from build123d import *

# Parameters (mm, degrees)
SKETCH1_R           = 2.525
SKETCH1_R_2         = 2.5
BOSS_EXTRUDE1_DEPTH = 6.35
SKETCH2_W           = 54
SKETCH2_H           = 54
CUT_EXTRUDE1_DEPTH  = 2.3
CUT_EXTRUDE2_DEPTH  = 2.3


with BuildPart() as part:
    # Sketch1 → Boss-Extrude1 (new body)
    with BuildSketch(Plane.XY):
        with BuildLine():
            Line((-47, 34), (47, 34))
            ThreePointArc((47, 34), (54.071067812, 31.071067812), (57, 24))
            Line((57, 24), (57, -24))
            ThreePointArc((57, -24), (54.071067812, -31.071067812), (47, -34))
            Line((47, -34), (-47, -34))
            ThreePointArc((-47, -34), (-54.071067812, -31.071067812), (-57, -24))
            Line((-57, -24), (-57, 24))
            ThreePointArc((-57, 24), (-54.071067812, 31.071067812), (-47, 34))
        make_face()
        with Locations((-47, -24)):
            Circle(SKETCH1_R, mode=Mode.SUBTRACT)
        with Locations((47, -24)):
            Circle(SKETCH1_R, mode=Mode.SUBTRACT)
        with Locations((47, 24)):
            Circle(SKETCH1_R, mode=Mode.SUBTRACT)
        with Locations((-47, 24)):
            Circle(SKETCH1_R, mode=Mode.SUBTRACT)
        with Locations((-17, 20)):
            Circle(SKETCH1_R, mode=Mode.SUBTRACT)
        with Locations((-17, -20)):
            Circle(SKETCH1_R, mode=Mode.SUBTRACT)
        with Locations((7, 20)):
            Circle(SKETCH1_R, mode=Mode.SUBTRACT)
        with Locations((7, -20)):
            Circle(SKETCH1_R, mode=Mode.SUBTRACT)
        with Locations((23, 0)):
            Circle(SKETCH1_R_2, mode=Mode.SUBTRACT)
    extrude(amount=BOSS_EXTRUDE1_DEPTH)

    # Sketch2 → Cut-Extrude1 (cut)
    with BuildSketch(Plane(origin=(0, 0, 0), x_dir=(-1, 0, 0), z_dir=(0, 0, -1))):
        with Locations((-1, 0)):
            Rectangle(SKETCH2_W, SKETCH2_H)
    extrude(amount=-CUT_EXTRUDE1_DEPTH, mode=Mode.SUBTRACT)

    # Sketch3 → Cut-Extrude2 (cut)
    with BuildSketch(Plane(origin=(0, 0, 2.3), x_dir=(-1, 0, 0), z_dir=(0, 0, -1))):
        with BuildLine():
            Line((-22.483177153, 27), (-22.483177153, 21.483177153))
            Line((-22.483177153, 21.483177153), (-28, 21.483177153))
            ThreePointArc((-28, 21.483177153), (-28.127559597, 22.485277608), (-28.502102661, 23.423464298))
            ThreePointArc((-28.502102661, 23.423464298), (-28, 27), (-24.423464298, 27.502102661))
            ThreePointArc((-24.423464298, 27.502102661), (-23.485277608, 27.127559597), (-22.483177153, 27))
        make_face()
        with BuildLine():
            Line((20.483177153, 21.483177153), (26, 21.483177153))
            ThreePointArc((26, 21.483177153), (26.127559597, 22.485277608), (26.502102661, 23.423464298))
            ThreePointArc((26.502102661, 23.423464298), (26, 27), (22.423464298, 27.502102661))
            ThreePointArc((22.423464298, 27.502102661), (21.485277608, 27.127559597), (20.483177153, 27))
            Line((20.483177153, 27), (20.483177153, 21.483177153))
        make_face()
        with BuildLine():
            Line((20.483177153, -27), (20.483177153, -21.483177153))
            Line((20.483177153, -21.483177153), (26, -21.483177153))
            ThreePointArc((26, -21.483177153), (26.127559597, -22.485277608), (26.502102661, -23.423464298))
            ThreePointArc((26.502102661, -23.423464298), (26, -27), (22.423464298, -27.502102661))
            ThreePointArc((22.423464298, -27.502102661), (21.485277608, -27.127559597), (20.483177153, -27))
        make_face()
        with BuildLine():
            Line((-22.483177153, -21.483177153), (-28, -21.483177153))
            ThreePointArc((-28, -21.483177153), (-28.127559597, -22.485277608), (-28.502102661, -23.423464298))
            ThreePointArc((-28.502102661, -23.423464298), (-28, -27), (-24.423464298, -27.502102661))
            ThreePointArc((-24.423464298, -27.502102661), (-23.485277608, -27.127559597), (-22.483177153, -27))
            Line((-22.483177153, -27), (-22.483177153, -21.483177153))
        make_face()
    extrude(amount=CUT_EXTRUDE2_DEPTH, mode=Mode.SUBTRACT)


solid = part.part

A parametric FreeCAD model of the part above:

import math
import FreeCAD as App
import Part
import Sketcher


def add_polygon(sketch, points):
    """Adds a closed chain of lines whose ends are joined by coincident constraints."""
    first, n = sketch.GeometryCount, len(points)
    for a, b in zip(points, points[1:] + points[:1]):
        sketch.addGeometry(Part.LineSegment(App.Vector(*a, 0), App.Vector(*b, 0)), False)
    for i in range(n):
        sketch.addConstraint(Sketcher.Constraint("Coincident", first + i, 2, first + (i + 1) % n, 1))

doc = App.newDocument("Part")
body = doc.addObject("PartDesign::Body", "Body")

# Sketch on XY plane
sketch1 = doc.addObject("Sketcher::SketchObject", "Sketch")
body.addObject(sketch1)
sketch1.AttachmentSupport = (doc.XY_Plane, [""])
sketch1.MapMode = "FlatFace"
sketch1.addGeometry(Part.LineSegment(App.Vector(47, 34, 0), App.Vector(-47, 34, 0)), False)
sketch1.addGeometry(Part.ArcOfCircle(Part.Circle(App.Vector(-47, 24, 0), App.Vector(0, 0, 1), 10), math.radians(90), math.radians(180)), False)
sketch1.addGeometry(Part.LineSegment(App.Vector(-57, 24, 0), App.Vector(-57, -24, 0)), False)
sketch1.addGeometry(Part.ArcOfCircle(Part.Circle(App.Vector(-47, -24, 0), App.Vector(0, 0, 1), 10), math.radians(180), math.radians(270)), False)
sketch1.addGeometry(Part.LineSegment(App.Vector(-47, -34, 0), App.Vector(47, -34, 0)), False)
sketch1.addGeometry(Part.ArcOfCircle(Part.Circle(App.Vector(47, -24, 0), App.Vector(0, 0, 1), 10), math.radians(-90), math.radians(0)), False)
sketch1.addGeometry(Part.LineSegment(App.Vector(57, -24, 0), App.Vector(57, 24, 0)), False)
sketch1.addGeometry(Part.ArcOfCircle(Part.Circle(App.Vector(47, 24, 0), App.Vector(0, 0, 1), 10), math.radians(0), math.radians(90)), False)
sketch1.addGeometry(Part.Circle(App.Vector(47, -24, 0), App.Vector(0, 0, 1), 2.5), False)
sketch1.addGeometry(Part.Circle(App.Vector(7, -20, 0), App.Vector(0, 0, 1), 2.5), False)
sketch1.addGeometry(Part.Circle(App.Vector(-17, -20, 0), App.Vector(0, 0, 1), 2.5), False)
sketch1.addGeometry(Part.Circle(App.Vector(-47, -24, 0), App.Vector(0, 0, 1), 2.5), False)
sketch1.addGeometry(Part.Circle(App.Vector(23, 0, 0), App.Vector(0, 0, 1), 2.5), False)
sketch1.addGeometry(Part.Circle(App.Vector(47, 24, 0), App.Vector(0, 0, 1), 2.5), False)
sketch1.addGeometry(Part.Circle(App.Vector(7, 20, 0), App.Vector(0, 0, 1), 2.5), False)
sketch1.addGeometry(Part.Circle(App.Vector(-17, 20, 0), App.Vector(0, 0, 1), 2.5), False)
sketch1.addGeometry(Part.Circle(App.Vector(-47, 24, 0), App.Vector(0, 0, 1), 2.5), False)
sketch1.addConstraint(Sketcher.Constraint("Tangent", 0, 2, 1, 1))
sketch1.addConstraint(Sketcher.Constraint("Tangent", 1, 2, 2, 1))
sketch1.addConstraint(Sketcher.Constraint("Tangent", 2, 2, 3, 1))
sketch1.addConstraint(Sketcher.Constraint("Tangent", 3, 2, 4, 1))
sketch1.addConstraint(Sketcher.Constraint("Tangent", 4, 2, 5, 1))
sketch1.addConstraint(Sketcher.Constraint("Tangent", 5, 2, 6, 1))
sketch1.addConstraint(Sketcher.Constraint("Tangent", 6, 2, 7, 1))
sketch1.addConstraint(Sketcher.Constraint("Tangent", 7, 2, 0, 1))
sketch1.addConstraint(Sketcher.Constraint("Horizontal", 0))
sketch1.addConstraint(Sketcher.Constraint("Vertical", 2))
sketch1.addConstraint(Sketcher.Constraint("Horizontal", 4))
sketch1.addConstraint(Sketcher.Constraint("Vertical", 6))
sketch1.addConstraint(Sketcher.Constraint("Coincident", 8, 3, 5, 3))
sketch1.addConstraint(Sketcher.Constraint("Coincident", 11, 3, 3, 3))
sketch1.addConstraint(Sketcher.Constraint("Coincident", 13, 3, 7, 3))
sketch1.addConstraint(Sketcher.Constraint("Coincident", 16, 3, 1, 3))
sketch1.addConstraint(Sketcher.Constraint("Equal", 1, 3))
sketch1.addConstraint(Sketcher.Constraint("Equal", 3, 5))
sketch1.addConstraint(Sketcher.Constraint("Equal", 5, 7))
sketch1.addConstraint(Sketcher.Constraint("Equal", 8, 9))
sketch1.addConstraint(Sketcher.Constraint("Equal", 9, 10))
sketch1.addConstraint(Sketcher.Constraint("Equal", 10, 11))
sketch1.addConstraint(Sketcher.Constraint("Equal", 11, 13))
sketch1.addConstraint(Sketcher.Constraint("Equal", 13, 14))
sketch1.addConstraint(Sketcher.Constraint("Equal", 14, 15))
sketch1.addConstraint(Sketcher.Constraint("Equal", 15, 16))
sketch1.addConstraint(Sketcher.Constraint("Symmetric", 1, 3, 5, 3, -1, 1))
sketch1.addConstraint(Sketcher.Constraint("Symmetric", 9, 3, 14, 3, -1))
sketch1.addConstraint(Sketcher.Constraint("Symmetric", 10, 3, 15, 3, -1))
sketch1.addConstraint(Sketcher.Constraint("PointOnObject", 12, 3, -1))
sketch1.addConstraint(Sketcher.Constraint("Horizontal", 9, 3, 10, 3))
sketch1.addConstraint(Sketcher.Constraint("Diameter", 12, 5.0))
sketch1.addConstraint(Sketcher.Constraint("Radius", 1, 10.0))
sketch1.addConstraint(Sketcher.Constraint("Diameter", 8, 5.05))
sketch1.addConstraint(Sketcher.Constraint("DistanceX", 0, 2, 0, 1, 94.0))
sketch1.addConstraint(Sketcher.Constraint("DistanceY", 2, 2, 2, 1, 48.0))
sketch1.addConstraint(Sketcher.Constraint("DistanceX", -1, 1, 9, 3, 7.0))
sketch1.addConstraint(Sketcher.Constraint("DistanceY", 9, 3, -1, 1, 20.0))
sketch1.addConstraint(Sketcher.Constraint("DistanceX", 10, 3, -1, 1, 17.0))
sketch1.addConstraint(Sketcher.Constraint("DistanceX", -1, 1, 12, 3, 23.0))
pad1 = doc.addObject("PartDesign::Pad", "Pad")
body.addObject(pad1)
pad1.Profile = sketch1
pad1.Length = 6.35

# Sketch on XY plane
sketch2 = doc.addObject("Sketcher::SketchObject", "Sketch001")
body.addObject(sketch2)
sketch2.AttachmentSupport = (doc.XY_Plane, [""])
sketch2.MapMode = "FlatFace"
add_polygon(sketch2, [(28, 27), (28, -27), (-26, -27), (-26, 27)])  # lines 0-3
sketch2.addConstraint(Sketcher.Constraint("Vertical", 0))
sketch2.addConstraint(Sketcher.Constraint("Horizontal", 1))
sketch2.addConstraint(Sketcher.Constraint("Vertical", 2))
sketch2.addConstraint(Sketcher.Constraint("Horizontal", 3))
sketch2.addConstraint(Sketcher.Constraint("Equal", 3, 0))
sketch2.addConstraint(Sketcher.Constraint("DistanceX", 1, 2, 1, 1, 54.0))
sketch2.addConstraint(Sketcher.Constraint("DistanceX", -1, 1, 0, 2, 28.0))
sketch2.addConstraint(Sketcher.Constraint("DistanceY", 0, 2, -1, 1, 27.0))
pocket1 = doc.addObject("PartDesign::Pocket", "Pocket")
body.addObject(pocket1)
pocket1.Profile = sketch2
pocket1.Length = 2.3
pocket1.Reversed = True

# Sketch on XY plane
sketch3 = doc.addObject("Sketcher::SketchObject", "Sketch002")
body.addObject(sketch3)
sketch3.AttachmentSupport = (doc.XY_Plane, [""])
sketch3.MapMode = "FlatFace"
sketch3.AttachmentOffset = App.Placement(App.Vector(0, 0, 2.3), App.Rotation())
sketch3.addGeometry(Part.LineSegment(App.Vector(22.5, 21.5, 0), App.Vector(22.5, 27, 0)), False)
sketch3.addGeometry(Part.ArcOfCircle(Part.Circle(App.Vector(22.5, 31, 0), App.Vector(0, 0, 1), 4), math.radians(-90), math.radians(-61)), False)
sketch3.addGeometry(Part.ArcOfCircle(Part.Circle(App.Vector(25.9, 24.9, 0), App.Vector(0, 0, 1), 3), math.radians(-29), math.radians(119)), False)
sketch3.addGeometry(Part.ArcOfCircle(Part.Circle(App.Vector(32, 21.5, 0), App.Vector(0, 0, 1), 4), math.radians(151), math.radians(180)), False)
sketch3.addGeometry(Part.LineSegment(App.Vector(28, 21.5, 0), App.Vector(22.5, 21.5, 0)), False)
sketch3.addGeometry(Part.LineSegment(App.Vector(-20.5, 21.5, 0), App.Vector(-26, 21.5, 0)), False)
sketch3.addGeometry(Part.ArcOfCircle(Part.Circle(App.Vector(-30, 21.5, 0), App.Vector(0, 0, 1), 4), math.radians(0), math.radians(29)), False)
sketch3.addGeometry(Part.ArcOfCircle(Part.Circle(App.Vector(-23.9, 24.9, 0), App.Vector(0, 0, 1), 3), math.radians(61), math.radians(209)), False)
sketch3.addGeometry(Part.ArcOfCircle(Part.Circle(App.Vector(-20.5, 31, 0), App.Vector(0, 0, 1), 4), math.radians(-119), math.radians(-90)), False)
sketch3.addGeometry(Part.LineSegment(App.Vector(-20.5, 27, 0), App.Vector(-20.5, 21.5, 0)), False)
sketch3.addGeometry(Part.LineSegment(App.Vector(-20.5, -21.5, 0), App.Vector(-20.5, -27, 0)), False)
sketch3.addGeometry(Part.ArcOfCircle(Part.Circle(App.Vector(-20.5, -31, 0), App.Vector(0, 0, 1), 4), math.radians(90), math.radians(119)), False)
sketch3.addGeometry(Part.ArcOfCircle(Part.Circle(App.Vector(-23.9, -24.9, 0), App.Vector(0, 0, 1), 3), math.radians(151), math.radians(299)), False)
sketch3.addGeometry(Part.ArcOfCircle(Part.Circle(App.Vector(-30, -21.5, 0), App.Vector(0, 0, 1), 4), math.radians(-29), math.radians(0)), False)
sketch3.addGeometry(Part.LineSegment(App.Vector(-26, -21.5, 0), App.Vector(-20.5, -21.5, 0)), False)
sketch3.addGeometry(Part.LineSegment(App.Vector(22.5, -21.5, 0), App.Vector(28, -21.5, 0)), False)
sketch3.addGeometry(Part.ArcOfCircle(Part.Circle(App.Vector(32, -21.5, 0), App.Vector(0, 0, 1), 4), math.radians(-180), math.radians(-151)), False)
sketch3.addGeometry(Part.ArcOfCircle(Part.Circle(App.Vector(25.9, -24.9, 0), App.Vector(0, 0, 1), 3), math.radians(-119), math.radians(29)), False)
sketch3.addGeometry(Part.ArcOfCircle(Part.Circle(App.Vector(22.5, -31, 0), App.Vector(0, 0, 1), 4), math.radians(61), math.radians(90)), False)
sketch3.addGeometry(Part.LineSegment(App.Vector(22.5, -27, 0), App.Vector(22.5, -21.5, 0)), False)
sketch3.addConstraint(Sketcher.Constraint("Coincident", 0, 2, 1, 1))
sketch3.addConstraint(Sketcher.Constraint("Tangent", 1, 2, 2, 2))
sketch3.addConstraint(Sketcher.Constraint("Tangent", 2, 1, 3, 1))
sketch3.addConstraint(Sketcher.Constraint("Coincident", 3, 2, 4, 1))
sketch3.addConstraint(Sketcher.Constraint("Coincident", 4, 2, 0, 1))
sketch3.addConstraint(Sketcher.Constraint("Coincident", 5, 2, 6, 1))
sketch3.addConstraint(Sketcher.Constraint("Tangent", 6, 2, 7, 2))
sketch3.addConstraint(Sketcher.Constraint("Tangent", 7, 1, 8, 1))
sketch3.addConstraint(Sketcher.Constraint("Coincident", 8, 2, 9, 1))
sketch3.addConstraint(Sketcher.Constraint("Coincident", 9, 2, 5, 1))
sketch3.addConstraint(Sketcher.Constraint("Coincident", 10, 2, 11, 1))
sketch3.addConstraint(Sketcher.Constraint("Tangent", 11, 2, 12, 2))
sketch3.addConstraint(Sketcher.Constraint("Tangent", 12, 1, 13, 1))
sketch3.addConstraint(Sketcher.Constraint("Coincident", 13, 2, 14, 1))
sketch3.addConstraint(Sketcher.Constraint("Coincident", 14, 2, 10, 1))
sketch3.addConstraint(Sketcher.Constraint("Coincident", 15, 2, 16, 1))
sketch3.addConstraint(Sketcher.Constraint("Tangent", 16, 2, 17, 2))
sketch3.addConstraint(Sketcher.Constraint("Tangent", 17, 1, 18, 1))
sketch3.addConstraint(Sketcher.Constraint("Coincident", 18, 2, 19, 1))
sketch3.addConstraint(Sketcher.Constraint("Coincident", 19, 2, 15, 1))
sketch3.addConstraint(Sketcher.Constraint("Vertical", 0))
sketch3.addConstraint(Sketcher.Constraint("Horizontal", 4))
sketch3.addConstraint(Sketcher.Constraint("Horizontal", 5))
sketch3.addConstraint(Sketcher.Constraint("Vertical", 9))
sketch3.addConstraint(Sketcher.Constraint("Vertical", 10))
sketch3.addConstraint(Sketcher.Constraint("Horizontal", 14))
sketch3.addConstraint(Sketcher.Constraint("Horizontal", 15))
sketch3.addConstraint(Sketcher.Constraint("Vertical", 19))
sketch3.addConstraint(Sketcher.Constraint("Equal", 1, 3))
sketch3.addConstraint(Sketcher.Constraint("Equal", 3, 6))
sketch3.addConstraint(Sketcher.Constraint("Equal", 2, 7))
sketch3.addConstraint(Sketcher.Constraint("Equal", 6, 8))
sketch3.addConstraint(Sketcher.Constraint("Equal", 8, 11))
sketch3.addConstraint(Sketcher.Constraint("Equal", 7, 12))
sketch3.addConstraint(Sketcher.Constraint("Equal", 11, 13))
sketch3.addConstraint(Sketcher.Constraint("Equal", 13, 16))
sketch3.addConstraint(Sketcher.Constraint("Equal", 12, 17))
sketch3.addConstraint(Sketcher.Constraint("Equal", 16, 18))
sketch3.addConstraint(Sketcher.Constraint("Symmetric", 8, 3, 11, 3, -1))
sketch3.addConstraint(Sketcher.Constraint("Symmetric", 6, 3, 13, 3, -1))
sketch3.addConstraint(Sketcher.Constraint("Symmetric", 3, 3, 16, 3, -1))
sketch3.addConstraint(Sketcher.Constraint("Symmetric", 1, 3, 18, 3, -1))
sketch3.addConstraint(Sketcher.Constraint("Symmetric", 9, 2, 14, 2, -1))
sketch3.addConstraint(Sketcher.Constraint("Symmetric", 4, 2, 19, 2, -1))
sketch3.addConstraint(Sketcher.Constraint("Horizontal", 3, 3, 6, 3))
sketch3.addConstraint(Sketcher.Constraint("Horizontal", 2, 3, 7, 3))
sketch3.addConstraint(Sketcher.Constraint("Horizontal", 1, 3, 8, 3))
sketch3.addConstraint(Sketcher.Constraint("Horizontal", 6, 3, 3, 2))
sketch3.addConstraint(Sketcher.Constraint("Horizontal", 4, 2, 5, 2))
sketch3.addConstraint(Sketcher.Constraint("Vertical", 18, 3, 0, 2))
sketch3.addConstraint(Sketcher.Constraint("Vertical", 11, 3, 8, 2))
sketch3.addConstraint(Sketcher.Constraint("Equal", 15, 0))
sketch3.addConstraint(Sketcher.Constraint("Radius", 1, 4.0))
sketch3.addConstraint(Sketcher.Constraint("Radius", 2, 3.0))
sketch3.addConstraint(Sketcher.Constraint("DistanceY", -1, 1, 1, 3, 31.0))
sketch3.addConstraint(Sketcher.Constraint("DistanceX", -1, 1, 3, 3, 32.0))
sketch3.addConstraint(Sketcher.Constraint("DistanceX", 6, 3, -1, 1, 30.0))
sketch3.addConstraint(Sketcher.Constraint("DistanceX", 4, 2, 4, 1, 5.516823))
pocket2 = doc.addObject("PartDesign::Pocket", "Pocket001")
body.addObject(pocket2)
pocket2.Profile = sketch3
pocket2.Length = 2.3

doc.recompute()
